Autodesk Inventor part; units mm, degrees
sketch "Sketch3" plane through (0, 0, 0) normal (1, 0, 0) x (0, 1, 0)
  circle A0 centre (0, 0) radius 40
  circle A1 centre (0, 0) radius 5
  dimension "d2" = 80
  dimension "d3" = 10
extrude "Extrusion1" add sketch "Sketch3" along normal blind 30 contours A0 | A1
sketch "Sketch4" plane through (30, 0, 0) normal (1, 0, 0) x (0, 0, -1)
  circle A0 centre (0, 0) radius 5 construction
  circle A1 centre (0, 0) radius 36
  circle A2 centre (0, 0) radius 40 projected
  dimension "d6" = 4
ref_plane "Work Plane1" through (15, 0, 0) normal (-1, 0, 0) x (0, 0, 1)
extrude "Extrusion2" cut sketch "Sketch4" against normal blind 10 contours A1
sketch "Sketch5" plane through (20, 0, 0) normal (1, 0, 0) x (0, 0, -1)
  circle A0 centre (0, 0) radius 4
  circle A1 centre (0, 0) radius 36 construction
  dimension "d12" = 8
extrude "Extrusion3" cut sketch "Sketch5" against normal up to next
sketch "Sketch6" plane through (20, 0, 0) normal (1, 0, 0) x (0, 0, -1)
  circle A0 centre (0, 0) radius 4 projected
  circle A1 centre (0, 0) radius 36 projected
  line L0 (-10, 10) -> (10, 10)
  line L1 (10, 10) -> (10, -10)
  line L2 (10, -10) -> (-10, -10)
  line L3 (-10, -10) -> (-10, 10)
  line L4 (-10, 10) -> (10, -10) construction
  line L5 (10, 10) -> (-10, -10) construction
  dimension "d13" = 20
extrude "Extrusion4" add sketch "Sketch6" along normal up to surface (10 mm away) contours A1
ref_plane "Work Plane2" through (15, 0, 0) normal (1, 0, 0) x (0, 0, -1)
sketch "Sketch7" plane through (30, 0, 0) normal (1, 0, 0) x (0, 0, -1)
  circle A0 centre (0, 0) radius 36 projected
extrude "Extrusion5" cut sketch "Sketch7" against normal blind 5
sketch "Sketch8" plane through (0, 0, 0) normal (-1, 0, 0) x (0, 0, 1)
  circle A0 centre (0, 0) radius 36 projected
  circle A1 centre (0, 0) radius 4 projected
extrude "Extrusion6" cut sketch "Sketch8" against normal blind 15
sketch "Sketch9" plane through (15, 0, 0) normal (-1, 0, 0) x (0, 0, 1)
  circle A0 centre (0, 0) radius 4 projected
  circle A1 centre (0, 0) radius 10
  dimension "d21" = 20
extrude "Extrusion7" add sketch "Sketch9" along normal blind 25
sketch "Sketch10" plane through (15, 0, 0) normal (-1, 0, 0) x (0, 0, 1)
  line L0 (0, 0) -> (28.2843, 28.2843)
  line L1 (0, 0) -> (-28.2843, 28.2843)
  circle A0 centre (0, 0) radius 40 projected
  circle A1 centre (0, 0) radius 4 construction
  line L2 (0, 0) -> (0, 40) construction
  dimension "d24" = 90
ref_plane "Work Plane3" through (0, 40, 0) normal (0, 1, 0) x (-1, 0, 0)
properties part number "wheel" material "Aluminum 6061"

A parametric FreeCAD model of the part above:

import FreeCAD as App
import Part
import Sketcher
Q = App.Units.Quantity

doc = App.newDocument("Part")
body = doc.addObject("PartDesign::Body", "Body")

# Sketch on YZ plane
sketch1 = doc.addObject("Sketcher::SketchObject", "Sketch")
body.addObject(sketch1)
sketch1.AttachmentSupport = (doc.YZ_Plane, [""])
sketch1.MapMode = "FlatFace"
sketch1.addGeometry(Part.Circle(App.Vector(0, 0, 0), App.Vector(0, 0, 1), 40), False)
sketch1.addConstraint([
    Sketcher.Constraint("Coincident", 0, 3, -1, 1),
    Sketcher.Constraint("Diameter", 0, Q("80 mm")),
])
pad1 = doc.addObject("PartDesign::Pad", "Pad")
body.addObject(pad1)
pad1.Profile = sketch1
pad1.Length = 30

# Sketch on YZ plane
sketch2 = doc.addObject("Sketcher::SketchObject", "Sketch001")
body.addObject(sketch2)
sketch2.AttachmentSupport = (doc.YZ_Plane, [""])
sketch2.MapMode = "FlatFace"
sketch2.AttachmentOffset = App.Placement(App.Vector(0, 0, 30), App.Rotation())
sketch2.addGeometry(Part.Circle(App.Vector(0, 0, 0), App.Vector(0, 0, 1), 36), False)
sketch2.addConstraint([
    Sketcher.Constraint("Coincident", 0, 3, -1, 1),
    Sketcher.Constraint("Diameter", 0, Q("72 mm")),
])
pocket1 = doc.addObject("PartDesign::Pocket", "Pocket")
body.addObject(pocket1)
pocket1.Profile = sketch2
pocket1.Length = 10

# Sketch on YZ plane
sketch3 = doc.addObject("Sketcher::SketchObject", "Sketch002")
body.addObject(sketch3)
sketch3.AttachmentSupport = (doc.YZ_Plane, [""])
sketch3.MapMode = "FlatFace"
sketch3.AttachmentOffset = App.Placement(App.Vector(0, 0, 20), App.Rotation())
sketch3.addGeometry(Part.Circle(App.Vector(0, 0, 0), App.Vector(0, 0, 1), 4), False)
sketch3.addConstraint([
    Sketcher.Constraint("Coincident", 0, 3, -1, 1),
    Sketcher.Constraint("Diameter", 0, Q("8 mm")),
])
pocket2 = doc.addObject("PartDesign::Pocket", "Pocket001")
body.addObject(pocket2)
pocket2.Profile = sketch3
pocket2.Type = "UpToFirst"

# Sketch on YZ plane
sketch4 = doc.addObject("Sketcher::SketchObject", "Sketch003")
body.addObject(sketch4)
sketch4.AttachmentSupport = (doc.YZ_Plane, [""])
sketch4.MapMode = "FlatFace"
sketch4.AttachmentOffset = App.Placement(App.Vector(0, 0, 20), App.Rotation())
sketch4.addGeometry([
    Part.Circle(App.Vector(0, 0, 0), App.Vector(0, 0, 1), 36),  # 0
    Part.LineSegment(App.Vector(-10, 10, 0), App.Vector(10, 10, 0)),  # 1
    Part.LineSegment(App.Vector(10, 10, 0), App.Vector(10, -10, 0)),  # 2
    Part.LineSegment(App.Vector(10, -10, 0), App.Vector(-10, -10, 0)),  # 3
    Part.LineSegment(App.Vector(-10, -10, 0), App.Vector(-10, 10, 0)),  # 4
], False)
sketch4.addConstraint([
    Sketcher.Constraint("Coincident", 1, 2, 2, 1),
    Sketcher.Constraint("Coincident", 2, 2, 3, 1),
    Sketcher.Constraint("Coincident", 3, 2, 4, 1),
    Sketcher.Constraint("Coincident", 4, 2, 1, 1),
    Sketcher.Constraint("Horizontal", 1),
    Sketcher.Constraint("Vertical", 2),
    Sketcher.Constraint("Horizontal", 3),
    Sketcher.Constraint("Vertical", 4),
    Sketcher.Constraint("Coincident", 0, 3, -1, 1),
    Sketcher.Constraint("Symmetric", 1, 2, 3, 2, -1, 1),
    Sketcher.Constraint("Equal", 3, 2),
    Sketcher.Constraint("DistanceX", 1, 1, 1, 2, Q("20 mm")),
    Sketcher.Constraint("Diameter", 0, Q("72 mm")),
])
pad2 = doc.addObject("PartDesign::Pad", "Pad001")
body.addObject(pad2)
pad2.Profile = sketch4
pad2.Length = 10

# Sketch on YZ plane
sketch5 = doc.addObject("Sketcher::SketchObject", "Sketch004")
body.addObject(sketch5)
sketch5.AttachmentSupport = (doc.YZ_Plane, [""])
sketch5.MapMode = "FlatFace"
sketch5.AttachmentOffset = App.Placement(App.Vector(0, 0, 30), App.Rotation())
sketch5.addGeometry(Part.Circle(App.Vector(0, 0, 0), App.Vector(0, 0, 1), 36), False)
sketch5.addConstraint([
    Sketcher.Constraint("Coincident", 0, 3, -1, 1),
    Sketcher.Constraint("Diameter", 0, Q("72 mm")),
])
pocket3 = doc.addObject("PartDesign::Pocket", "Pocket002")
body.addObject(pocket3)
pocket3.Profile = sketch5
pocket3.Length = 5

# Sketch on YZ plane
sketch6 = doc.addObject("Sketcher::SketchObject", "Sketch005")
body.addObject(sketch6)
sketch6.AttachmentSupport = (doc.YZ_Plane, [""])
sketch6.MapMode = "FlatFace"
sketch6.addGeometry([
    Part.Circle(App.Vector(0, 0, 0), App.Vector(0, 0, 1), 36),
    Part.Circle(App.Vector(0, 0, 0), App.Vector(0, 0, 1), 4),
], False)
sketch6.addConstraint([
    Sketcher.Constraint("Coincident", 0, 3, -1, 1),
    Sketcher.Constraint("Coincident", 1, 3, -1, 1),
    Sketcher.Constraint("Diameter", 0, Q("72 mm")),
    Sketcher.Constraint("Diameter", 1, Q("8 mm")),
])
pocket4 = doc.addObject("PartDesign::Pocket", "Pocket003")
body.addObject(pocket4)
pocket4.Profile = sketch6
pocket4.Length = 15
pocket4.Reversed = True

# Sketch on YZ plane
sketch7 = doc.addObject("Sketcher::SketchObject", "Sketch006")
body.addObject(sketch7)
sketch7.AttachmentSupport = (doc.YZ_Plane, [""])
sketch7.MapMode = "FlatFace"
sketch7.AttachmentOffset = App.Placement(App.Vector(0, 0, 15), App.Rotation())
sketch7.addGeometry([
    Part.Circle(App.Vector(0, 0, 0), App.Vector(0, 0, 1), 10),
    Part.Circle(App.Vector(0, 0, 0), App.Vector(0, 0, 1), 4),
], False)
sketch7.addConstraint([
    Sketcher.Constraint("Coincident", 0, 3, -1, 1),
    Sketcher.Constraint("Coincident", 1, 3, -1, 1),
    Sketcher.Constraint("Diameter", 0, Q("20 mm")),
    Sketcher.Constraint("Diameter", 1, Q("8 mm")),
])
pad3 = doc.addObject("PartDesign::Pad", "Pad002")
body.addObject(pad3)
pad3.Profile = sketch7
pad3.Length = 25
pad3.Reversed = True

doc.recompute()
